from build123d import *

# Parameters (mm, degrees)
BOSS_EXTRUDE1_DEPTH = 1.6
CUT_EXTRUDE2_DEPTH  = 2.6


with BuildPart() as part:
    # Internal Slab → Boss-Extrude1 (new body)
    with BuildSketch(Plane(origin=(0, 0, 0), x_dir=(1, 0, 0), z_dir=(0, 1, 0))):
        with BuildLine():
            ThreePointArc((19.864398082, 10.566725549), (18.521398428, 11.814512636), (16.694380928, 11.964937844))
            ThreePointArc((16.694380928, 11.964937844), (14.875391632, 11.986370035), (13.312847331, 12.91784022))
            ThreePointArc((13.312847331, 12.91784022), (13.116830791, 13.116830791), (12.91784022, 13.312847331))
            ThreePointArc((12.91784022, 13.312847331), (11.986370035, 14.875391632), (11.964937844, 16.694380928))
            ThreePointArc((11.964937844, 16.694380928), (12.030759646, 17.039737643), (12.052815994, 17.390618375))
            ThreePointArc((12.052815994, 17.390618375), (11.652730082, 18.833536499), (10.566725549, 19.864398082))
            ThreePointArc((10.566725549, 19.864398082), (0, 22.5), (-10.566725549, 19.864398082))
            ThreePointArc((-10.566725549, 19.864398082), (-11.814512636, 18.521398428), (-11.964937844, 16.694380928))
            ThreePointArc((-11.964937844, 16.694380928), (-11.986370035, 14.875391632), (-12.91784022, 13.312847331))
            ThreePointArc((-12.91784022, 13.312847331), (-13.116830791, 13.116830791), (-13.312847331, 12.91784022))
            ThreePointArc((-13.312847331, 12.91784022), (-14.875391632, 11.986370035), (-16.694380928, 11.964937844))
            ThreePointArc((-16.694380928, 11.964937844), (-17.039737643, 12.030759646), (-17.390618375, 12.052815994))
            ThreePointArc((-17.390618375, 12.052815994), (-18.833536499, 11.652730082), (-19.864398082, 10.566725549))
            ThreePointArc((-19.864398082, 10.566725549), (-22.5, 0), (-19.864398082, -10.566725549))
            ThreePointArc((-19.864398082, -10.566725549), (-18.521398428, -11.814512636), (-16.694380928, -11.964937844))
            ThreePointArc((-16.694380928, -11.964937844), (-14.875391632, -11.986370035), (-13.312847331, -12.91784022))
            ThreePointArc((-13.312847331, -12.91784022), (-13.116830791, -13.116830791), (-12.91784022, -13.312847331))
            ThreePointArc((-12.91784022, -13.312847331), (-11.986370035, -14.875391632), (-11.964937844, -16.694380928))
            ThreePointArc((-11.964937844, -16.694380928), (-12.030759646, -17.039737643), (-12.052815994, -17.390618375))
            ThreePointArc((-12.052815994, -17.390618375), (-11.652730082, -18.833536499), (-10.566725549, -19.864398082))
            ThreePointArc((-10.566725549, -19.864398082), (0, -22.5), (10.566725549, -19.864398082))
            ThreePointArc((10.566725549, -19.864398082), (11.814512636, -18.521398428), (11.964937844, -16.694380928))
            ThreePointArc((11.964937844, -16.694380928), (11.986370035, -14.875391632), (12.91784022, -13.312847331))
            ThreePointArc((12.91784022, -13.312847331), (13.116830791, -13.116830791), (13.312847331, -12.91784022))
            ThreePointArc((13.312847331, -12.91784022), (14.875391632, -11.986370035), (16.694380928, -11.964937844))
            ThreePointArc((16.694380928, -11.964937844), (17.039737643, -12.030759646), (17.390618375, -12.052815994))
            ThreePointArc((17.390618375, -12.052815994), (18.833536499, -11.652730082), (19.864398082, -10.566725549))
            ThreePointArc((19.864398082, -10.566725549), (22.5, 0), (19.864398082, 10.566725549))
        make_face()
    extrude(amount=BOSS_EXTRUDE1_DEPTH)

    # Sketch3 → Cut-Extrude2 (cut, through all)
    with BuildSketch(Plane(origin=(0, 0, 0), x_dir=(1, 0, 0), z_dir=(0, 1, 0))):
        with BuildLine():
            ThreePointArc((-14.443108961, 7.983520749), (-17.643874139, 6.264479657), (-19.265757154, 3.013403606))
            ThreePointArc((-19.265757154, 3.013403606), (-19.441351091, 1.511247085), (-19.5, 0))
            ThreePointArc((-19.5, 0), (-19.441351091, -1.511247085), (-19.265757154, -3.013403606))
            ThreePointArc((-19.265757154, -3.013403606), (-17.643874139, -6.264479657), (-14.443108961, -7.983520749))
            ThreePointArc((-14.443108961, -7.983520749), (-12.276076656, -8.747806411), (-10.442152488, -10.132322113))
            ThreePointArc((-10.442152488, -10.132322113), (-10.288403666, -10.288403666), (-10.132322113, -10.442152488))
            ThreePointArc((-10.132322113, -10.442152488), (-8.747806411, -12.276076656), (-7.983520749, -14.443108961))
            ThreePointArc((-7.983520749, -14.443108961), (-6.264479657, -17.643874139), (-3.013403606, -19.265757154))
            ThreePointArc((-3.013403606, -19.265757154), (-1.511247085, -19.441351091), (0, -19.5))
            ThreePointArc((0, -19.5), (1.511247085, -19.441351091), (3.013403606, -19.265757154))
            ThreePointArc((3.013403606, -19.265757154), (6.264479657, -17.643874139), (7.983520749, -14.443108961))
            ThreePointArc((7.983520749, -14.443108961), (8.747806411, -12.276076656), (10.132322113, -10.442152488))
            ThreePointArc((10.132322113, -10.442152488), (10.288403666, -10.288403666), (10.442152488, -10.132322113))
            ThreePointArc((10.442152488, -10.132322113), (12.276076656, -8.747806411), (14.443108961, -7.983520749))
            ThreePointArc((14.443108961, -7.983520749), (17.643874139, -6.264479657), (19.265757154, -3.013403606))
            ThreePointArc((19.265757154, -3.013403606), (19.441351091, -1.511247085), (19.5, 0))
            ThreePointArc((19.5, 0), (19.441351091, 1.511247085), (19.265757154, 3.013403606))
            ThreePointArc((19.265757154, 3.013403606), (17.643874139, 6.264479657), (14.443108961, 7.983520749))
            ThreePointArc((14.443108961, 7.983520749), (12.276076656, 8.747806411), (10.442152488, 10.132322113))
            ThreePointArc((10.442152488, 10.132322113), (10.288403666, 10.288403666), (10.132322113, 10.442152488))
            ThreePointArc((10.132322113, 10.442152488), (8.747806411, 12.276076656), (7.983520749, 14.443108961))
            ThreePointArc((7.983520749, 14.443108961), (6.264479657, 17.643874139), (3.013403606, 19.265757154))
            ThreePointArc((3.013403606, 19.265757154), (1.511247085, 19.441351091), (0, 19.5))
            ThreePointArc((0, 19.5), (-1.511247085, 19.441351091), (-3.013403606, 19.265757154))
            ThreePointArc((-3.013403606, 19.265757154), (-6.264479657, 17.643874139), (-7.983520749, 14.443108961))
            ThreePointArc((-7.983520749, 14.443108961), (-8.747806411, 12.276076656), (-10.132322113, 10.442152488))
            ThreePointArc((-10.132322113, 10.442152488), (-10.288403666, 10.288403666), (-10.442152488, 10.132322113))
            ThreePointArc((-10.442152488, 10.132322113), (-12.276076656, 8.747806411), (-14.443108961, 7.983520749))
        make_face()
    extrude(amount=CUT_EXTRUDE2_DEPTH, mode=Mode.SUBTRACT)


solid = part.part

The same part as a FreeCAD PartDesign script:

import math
import FreeCAD as App
import Part
import Sketcher

V = App.Vector

doc = App.newDocument("Part")
body = doc.addObject("PartDesign::Body", "Body")

sketch1 = body.newObject("Sketcher::SketchObject", "Sketch")
sketch1.AttachmentSupport = (doc.getObject("XZ_Plane"), [""])
sketch1.MapMode = "FlatFace"
sketch1.addGeometry([
    Part.ArcOfCircle(Part.Circle(V(17.4, -9.3, 0), V(0, 0, 1), 2.8), math.radians(-104), math.radians(-28)),
    Part.ArcOfCircle(Part.Circle(V(15.8, -15.4, 0), V(0, 0, 1), 3.5), math.radians(76), math.radians(136)),
    Part.ArcOfCircle(Part.Circle(V(0, 0, 0), V(0, 0, 1), 18.6), math.radians(-45.86), math.radians(-44.14)),
    Part.ArcOfCircle(Part.Circle(V(15.4, -15.8, 0), V(0, 0, 1), 3.5), math.radians(134), math.radians(194)),
    Part.ArcOfCircle(Part.Circle(V(9.3, -17.4, 0), V(0, 0, 1), 2.8), math.radians(0), math.radians(14.39)),
    Part.ArcOfCircle(Part.Circle(V(9.3, -17.4, 0), V(0, 0, 1), 2.8), math.radians(-62), math.radians(0)),
    Part.ArcOfCircle(Part.Circle(V(0, 0, 0), V(0, 0, 1), 22.5), math.radians(-118), math.radians(-62)),
    Part.ArcOfCircle(Part.Circle(V(-9.3, -17.4, 0), V(0, 0, 1), 2.8), math.radians(166), math.radians(242)),
    Part.ArcOfCircle(Part.Circle(V(-15.4, -15.8, 0), V(0, 0, 1), 3.5), math.radians(-14), math.radians(46)),
    Part.ArcOfCircle(Part.Circle(V(0, 0, 0), V(0, 0, 1), 18.6), math.radians(-135.86), math.radians(-134.14)),
    Part.ArcOfCircle(Part.Circle(V(-15.8, -15.4, 0), V(0, 0, 1), 3.5), math.radians(44), math.radians(104)),
    Part.ArcOfCircle(Part.Circle(V(-17.4, -9.3, 0), V(0, 0, 1), 2.8), math.radians(-90), math.radians(-75.61)),
    Part.ArcOfCircle(Part.Circle(V(-17.4, -9.3, 0), V(0, 0, 1), 2.8), math.radians(-152), math.radians(-90)),
    Part.ArcOfCircle(Part.Circle(V(0, 0, 0), V(0, 0, 1), 22.5), math.radians(152), math.radians(208)),
    Part.ArcOfCircle(Part.Circle(V(-17.4, 9.3, 0), V(0, 0, 1), 2.8), math.radians(76), math.radians(152)),
    Part.ArcOfCircle(Part.Circle(V(-15.8, 15.4, 0), V(0, 0, 1), 3.5), math.radians(-104), math.radians(-44)),
    Part.ArcOfCircle(Part.Circle(V(0, 0, 0), V(0, 0, 1), 18.6), math.radians(134.14), math.radians(135.86)),
    Part.ArcOfCircle(Part.Circle(V(-15.4, 15.8, 0), V(0, 0, 1), 3.5), math.radians(-46), math.radians(14)),
    Part.ArcOfCircle(Part.Circle(V(-9.3, 17.4, 0), V(0, 0, 1), 2.8), math.radians(-180), math.radians(-165.61)),
    Part.ArcOfCircle(Part.Circle(V(-9.3, 17.4, 0), V(0, 0, 1), 2.8), math.radians(118), math.radians(180)),
    Part.ArcOfCircle(Part.Circle(V(0, 0, 0), V(0, 0, 1), 22.5), math.radians(62), math.radians(118)),
    Part.ArcOfCircle(Part.Circle(V(9.3, 17.4, 0), V(0, 0, 1), 2.8), math.radians(-14), math.radians(62)),
    Part.ArcOfCircle(Part.Circle(V(15.4, 15.8, 0), V(0, 0, 1), 3.5), math.radians(166), math.radians(226)),
    Part.ArcOfCircle(Part.Circle(V(0, 0, 0), V(0, 0, 1), 18.6), math.radians(44.14), math.radians(45.86)),
    Part.ArcOfCircle(Part.Circle(V(15.8, 15.4, 0), V(0, 0, 1), 3.5), math.radians(-136), math.radians(-76)),
    Part.ArcOfCircle(Part.Circle(V(17.4, 9.3, 0), V(0, 0, 1), 2.8), math.radians(90), math.radians(104.39)),
    Part.ArcOfCircle(Part.Circle(V(17.4, 9.3, 0), V(0, 0, 1), 2.8), math.radians(28), math.radians(90)),
    Part.ArcOfCircle(Part.Circle(V(0, 0, 0), V(0, 0, 1), 22.5), math.radians(-28), math.radians(28)),
], False)
sketch1.addConstraint([
    Sketcher.Constraint("Tangent", 0, 1, 1, 1),
    Sketcher.Constraint("Tangent", 1, 2, 2, 2),
    Sketcher.Constraint("Tangent", 2, 1, 3, 1),
    Sketcher.Constraint("Tangent", 3, 2, 4, 2),
    Sketcher.Constraint("Tangent", 4, 1, 5, 2),
    Sketcher.Constraint("Tangent", 5, 1, 6, 2),
    Sketcher.Constraint("Tangent", 6, 1, 7, 2),
    Sketcher.Constraint("Tangent", 7, 1, 8, 1),
    Sketcher.Constraint("Tangent", 8, 2, 9, 2),
    Sketcher.Constraint("Tangent", 9, 1, 10, 1),
    Sketcher.Constraint("Tangent", 10, 2, 11, 2),
    Sketcher.Constraint("Tangent", 11, 1, 12, 2),
    Sketcher.Constraint("Tangent", 12, 1, 13, 2),
    Sketcher.Constraint("Tangent", 13, 1, 14, 2),
    Sketcher.Constraint("Tangent", 14, 1, 15, 1),
    Sketcher.Constraint("Tangent", 15, 2, 16, 2),
    Sketcher.Constraint("Tangent", 16, 1, 17, 1),
    Sketcher.Constraint("Tangent", 17, 2, 18, 2),
    Sketcher.Constraint("Tangent", 18, 1, 19, 2),
    Sketcher.Constraint("Tangent", 19, 1, 20, 2),
    Sketcher.Constraint("Tangent", 20, 1, 21, 2),
    Sketcher.Constraint("Tangent", 21, 1, 22, 1),
    Sketcher.Constraint("Tangent", 22, 2, 23, 2),
    Sketcher.Constraint("Tangent", 23, 1, 24, 1),
    Sketcher.Constraint("Tangent", 24, 2, 25, 2),
    Sketcher.Constraint("Tangent", 25, 1, 26, 2),
    Sketcher.Constraint("Tangent", 26, 1, 27, 2),
    Sketcher.Constraint("Tangent", 27, 1, 0, 2),
    Sketcher.Constraint("Coincident", 2, 3, -1, 1),
    Sketcher.Constraint("Coincident", 6, 3, -1, 1),
    Sketcher.Constraint("Coincident", 9, 3, -1, 1),
    Sketcher.Constraint("Coincident", 13, 3, -1, 1),
    Sketcher.Constraint("Coincident", 16, 3, -1, 1),
    Sketcher.Constraint("Coincident", 20, 3, -1, 1),
    Sketcher.Constraint("Coincident", 23, 3, -1, 1),
    Sketcher.Constraint("Coincident", 27, 3, -1, 1),
    Sketcher.Constraint("Equal", 1, 3),
    Sketcher.Constraint("Equal", 0, 4),
    Sketcher.Constraint("Equal", 4, 5),
    Sketcher.Constraint("Equal", 5, 7),
    Sketcher.Constraint("Equal", 3, 8),
    Sketcher.Constraint("Equal", 2, 9),
    Sketcher.Constraint("Equal", 8, 10),
    Sketcher.Constraint("Equal", 7, 11),
    Sketcher.Constraint("Equal", 11, 12),
    Sketcher.Constraint("Equal", 6, 13),
    Sketcher.Constraint("Equal", 12, 14),
    Sketcher.Constraint("Equal", 10, 15),
    Sketcher.Constraint("Equal", 9, 16),
    Sketcher.Constraint("Equal", 15, 17),
    Sketcher.Constraint("Equal", 14, 18),
    Sketcher.Constraint("Equal", 18, 19),
    Sketcher.Constraint("Equal", 13, 20),
    Sketcher.Constraint("Equal", 19, 21),
    Sketcher.Constraint("Equal", 17, 22),
    Sketcher.Constraint("Equal", 16, 23),
    Sketcher.Constraint("Equal", 22, 24),
    Sketcher.Constraint("Equal", 21, 25),
    Sketcher.Constraint("Equal", 25, 26),
    Sketcher.Constraint("Equal", 20, 27),
    Sketcher.Constraint("Symmetric", 4, 1, 18, 1, -1, 1),
    Sketcher.Constraint("Symmetric", 11, 1, 25, 1, -1, 1),
    Sketcher.Constraint("Horizontal", 5, 3, 7, 3),
    Sketcher.Constraint("Horizontal", 1, 3, 10, 3),
    Sketcher.Constraint("Horizontal", 19, 3, 21, 3),
    Sketcher.Constraint("Horizontal", 15, 3, 24, 3),
    Sketcher.Constraint("Horizontal", 7, 3, 4, 1),
    Sketcher.Constraint("Vertical", 14, 3, 11, 1),
    Sketcher.Constraint("Radius", 1, 3.5),
    Sketcher.Constraint("Radius", 6, 22.5),
    Sketcher.Constraint("Radius", 0, 2.802),
    Sketcher.Constraint("Radius", 2, 18.550002),
    Sketcher.Constraint("DistanceY", 5, 1, -1, 1, 19.864398),
    Sketcher.Constraint("DistanceX", 12, 1, -1, 1, 19.864398),
])
pad1 = body.newObject("PartDesign::Pad", "Pad")
pad1.Profile = sketch1
pad1.Length = 1.6
pad1.Reversed = True

sketch2 = body.newObject("Sketcher::SketchObject", "Sketch001")
sketch2.AttachmentSupport = (doc.getObject("XZ_Plane"), [""])
sketch2.MapMode = "FlatFace"
sketch2.addGeometry([
    Part.ArcOfCircle(Part.Circle(V(-13.34, -2.09, 0), V(0, 0, 1), 6), math.radians(-171), math.radians(-101)),
    Part.ArcOfCircle(Part.Circle(V(0, 0, 0), V(0, 0, 1), 19.5), math.radians(-180), math.radians(-171.11)),
    Part.ArcOfCircle(Part.Circle(V(0, 0, 0), V(0, 0, 1), 19.5), math.radians(171.11), math.radians(180)),
    Part.ArcOfCircle(Part.Circle(V(-13.34, 2.09, 0), V(0, 0, 1), 6), math.radians(101), math.radians(171)),
    Part.ArcOfCircle(Part.Circle(V(-15.82, 15.36, 0), V(0, 0, 1), 7.5), math.radians(-79), math.radians(-44)),
    Part.ArcOfCircle(Part.Circle(V(0, 0, 0), V(0, 0, 1), 14.55), math.radians(134.14), math.radians(135.86)),
    Part.ArcOfCircle(Part.Circle(V(-15.36, 15.82, 0), V(0, 0, 1), 7.5), math.radians(-46), math.radians(-11)),
    Part.ArcOfCircle(Part.Circle(V(-2.09, 13.34, 0), V(0, 0, 1), 6), math.radians(99), math.radians(169)),
    Part.ArcOfCircle(Part.Circle(V(0, 0, 0), V(0, 0, 1), 19.5), math.radians(90), math.radians(98.89)),
    Part.ArcOfCircle(Part.Circle(V(0, 0, 0), V(0, 0, 1), 19.5), math.radians(81.11), math.radians(90)),
    Part.ArcOfCircle(Part.Circle(V(2.09, 13.34, 0), V(0, 0, 1), 6), math.radians(11), math.radians(81)),
    Part.ArcOfCircle(Part.Circle(V(15.36, 15.82, 0), V(0, 0, 1), 7.5), math.radians(-169), math.radians(-134)),
    Part.ArcOfCircle(Part.Circle(V(0, 0, 0), V(0, 0, 1), 14.55), math.radians(44.14), math.radians(45.86)),
    Part.ArcOfCircle(Part.Circle(V(15.82, 15.36, 0), V(0, 0, 1), 7.5), math.radians(-136), math.radians(-101)),
    Part.ArcOfCircle(Part.Circle(V(13.34, 2.09, 0), V(0, 0, 1), 6), math.radians(9), math.radians(79)),
    Part.ArcOfCircle(Part.Circle(V(0, 0, 0), V(0, 0, 1), 19.5), math.radians(0), math.radians(8.89)),
    Part.ArcOfCircle(Part.Circle(V(0, 0, 0), V(0, 0, 1), 19.5), math.radians(-8.89), math.radians(0)),
    Part.ArcOfCircle(Part.Circle(V(13.34, -2.09, 0), V(0, 0, 1), 6), math.radians(-79), math.radians(-9)),
    Part.ArcOfCircle(Part.Circle(V(15.82, -15.36, 0), V(0, 0, 1), 7.5), math.radians(101), math.radians(136)),
    Part.ArcOfCircle(Part.Circle(V(0, 0, 0), V(0, 0, 1), 14.55), math.radians(-45.86), math.radians(-44.14)),
    Part.ArcOfCircle(Part.Circle(V(15.36, -15.82, 0), V(0, 0, 1), 7.5), math.radians(134), math.radians(169)),
    Part.ArcOfCircle(Part.Circle(V(2.09, -13.34, 0), V(0, 0, 1), 6), math.radians(-81), math.radians(-11)),
    Part.ArcOfCircle(Part.Circle(V(0, 0, 0), V(0, 0, 1), 19.5), math.radians(-90), math.radians(-81.11)),
    Part.ArcOfCircle(Part.Circle(V(0, 0, 0), V(0, 0, 1), 19.5), math.radians(-98.89), math.radians(-90)),
    Part.ArcOfCircle(Part.Circle(V(-2.09, -13.34, 0), V(0, 0, 1), 6), math.radians(-169), math.radians(-99)),
    Part.ArcOfCircle(Part.Circle(V(-15.36, -15.82, 0), V(0, 0, 1), 7.5), math.radians(11), math.radians(46)),
    Part.ArcOfCircle(Part.Circle(V(0, 0, 0), V(0, 0, 1), 14.55), math.radians(-135.86), math.radians(-134.14)),
    Part.ArcOfCircle(Part.Circle(V(-15.82, -15.36, 0), V(0, 0, 1), 7.5), math.radians(44), math.radians(79)),
], False)
sketch2.addConstraint([
    Sketcher.Constraint("Tangent", 0, 1, 1, 2),
    Sketcher.Constraint("Tangent", 1, 1, 2, 2),
    Sketcher.Constraint("Tangent", 2, 1, 3, 2),
    Sketcher.Constraint("Tangent", 3, 1, 4, 1),
    Sketcher.Constraint("Tangent", 4, 2, 5, 2),
    Sketcher.Constraint("Tangent", 5, 1, 6, 1),
    Sketcher.Constraint("Tangent", 6, 2, 7, 2),
    Sketcher.Constraint("Tangent", 7, 1, 8, 2),
    Sketcher.Constraint("Tangent", 8, 1, 9, 2),
    Sketcher.Constraint("Tangent", 9, 1, 10, 2),
    Sketcher.Constraint("Tangent", 10, 1, 11, 1),
    Sketcher.Constraint("Tangent", 11, 2, 12, 2),
    Sketcher.Constraint("Tangent", 12, 1, 13, 1),
    Sketcher.Constraint("Tangent", 13, 2, 14, 2),
    Sketcher.Constraint("Tangent", 14, 1, 15, 2),
    Sketcher.Constraint("Tangent", 15, 1, 16, 2),
    Sketcher.Constraint("Tangent", 16, 1, 17, 2),
    Sketcher.Constraint("Tangent", 17, 1, 18, 1),
    Sketcher.Constraint("Tangent", 18, 2, 19, 2),
    Sketcher.Constraint("Tangent", 19, 1, 20, 1),
    Sketcher.Constraint("Tangent", 20, 2, 21, 2),
    Sketcher.Constraint("Tangent", 21, 1, 22, 2),
    Sketcher.Constraint("Tangent", 22, 1, 23, 2),
    Sketcher.Constraint("Tangent", 23, 1, 24, 2),
    Sketcher.Constraint("Tangent", 24, 1, 25, 1),
    Sketcher.Constraint("Tangent", 25, 2, 26, 2),
    Sketcher.Constraint("Tangent", 26, 1, 27, 1),
    Sketcher.Constraint("Tangent", 27, 2, 0, 2),
    Sketcher.Constraint("Coincident", 1, 3, -1, 1),
    Sketcher.Constraint("Coincident", 5, 3, -1, 1),
    Sketcher.Constraint("Coincident", 8, 3, -1, 1),
    Sketcher.Constraint("Coincident", 12, 3, -1, 1),
    Sketcher.Constraint("Coincident", 15, 3, -1, 1),
    Sketcher.Constraint("Coincident", 19, 3, -1, 1),
    Sketcher.Constraint("Coincident", 22, 3, -1, 1),
    Sketcher.Constraint("Coincident", 26, 3, -1, 1),
    Sketcher.Constraint("Equal", 1, 2),
    Sketcher.Constraint("Equal", 0, 3),
    Sketcher.Constraint("Equal", 4, 6),
    Sketcher.Constraint("Equal", 3, 7),
    Sketcher.Constraint("Equal", 2, 8),
    Sketcher.Constraint("Equal", 8, 9),
    Sketcher.Constraint("Equal", 7, 10),
    Sketcher.Constraint("Equal", 6, 11),
    Sketcher.Constraint("Equal", 5, 12),
    Sketcher.Constraint("Equal", 11, 13),
    Sketcher.Constraint("Equal", 10, 14),
    Sketcher.Constraint("Equal", 9, 15),
    Sketcher.Constraint("Equal", 15, 16),
    Sketcher.Constraint("Equal", 14, 17),
    Sketcher.Constraint("Equal", 13, 18),
    Sketcher.Constraint("Equal", 12, 19),
    Sketcher.Constraint("Equal", 18, 20),
    Sketcher.Constraint("Equal", 17, 21),
    Sketcher.Constraint("Equal", 16, 22),
    Sketcher.Constraint("Equal", 22, 23),
    Sketcher.Constraint("Equal", 21, 24),
    Sketcher.Constraint("Equal", 20, 25),
    Sketcher.Constraint("Equal", 19, 26),
    Sketcher.Constraint("Equal", 25, 27),
    Sketcher.Constraint("PointOnObject", 1, 1, -1),
    Sketcher.Constraint("PointOnObject", 8, 1, -2),
    Sketcher.Constraint("PointOnObject", 15, 1, -1),
    Sketcher.Constraint("PointOnObject", 22, 1, -2),
    Sketcher.Constraint("Horizontal", 7, 3, 10, 3),
    Sketcher.Constraint("Horizontal", 4, 3, 13, 3),
    Sketcher.Constraint("Horizontal", 0, 3, 17, 3),
    Sketcher.Constraint("Horizontal", 21, 3, 24, 3),
    Sketcher.Constraint("Vertical", 0, 3, 3, 3),
    Sketcher.Constraint("Vertical", 11, 3, 20, 3),
    Sketcher.Constraint("Radius", 0, 6.0),
    Sketcher.Constraint("Radius", 1, 19.5),
    Sketcher.Constraint("Radius", 4, 7.5),
    Sketcher.Constraint("Radius", 5, 14.549999),
    Sketcher.Constraint("DistanceY", 5, 3, 3, 3, 2.086201),
    Sketcher.Constraint("DistanceX", 7, 3, 5, 3, 2.086201),
])
pocket1 = body.newObject("PartDesign::Pocket", "Pocket")
pocket1.Profile = sketch2
pocket1.Type = "ThroughAll"

doc.recompute()
